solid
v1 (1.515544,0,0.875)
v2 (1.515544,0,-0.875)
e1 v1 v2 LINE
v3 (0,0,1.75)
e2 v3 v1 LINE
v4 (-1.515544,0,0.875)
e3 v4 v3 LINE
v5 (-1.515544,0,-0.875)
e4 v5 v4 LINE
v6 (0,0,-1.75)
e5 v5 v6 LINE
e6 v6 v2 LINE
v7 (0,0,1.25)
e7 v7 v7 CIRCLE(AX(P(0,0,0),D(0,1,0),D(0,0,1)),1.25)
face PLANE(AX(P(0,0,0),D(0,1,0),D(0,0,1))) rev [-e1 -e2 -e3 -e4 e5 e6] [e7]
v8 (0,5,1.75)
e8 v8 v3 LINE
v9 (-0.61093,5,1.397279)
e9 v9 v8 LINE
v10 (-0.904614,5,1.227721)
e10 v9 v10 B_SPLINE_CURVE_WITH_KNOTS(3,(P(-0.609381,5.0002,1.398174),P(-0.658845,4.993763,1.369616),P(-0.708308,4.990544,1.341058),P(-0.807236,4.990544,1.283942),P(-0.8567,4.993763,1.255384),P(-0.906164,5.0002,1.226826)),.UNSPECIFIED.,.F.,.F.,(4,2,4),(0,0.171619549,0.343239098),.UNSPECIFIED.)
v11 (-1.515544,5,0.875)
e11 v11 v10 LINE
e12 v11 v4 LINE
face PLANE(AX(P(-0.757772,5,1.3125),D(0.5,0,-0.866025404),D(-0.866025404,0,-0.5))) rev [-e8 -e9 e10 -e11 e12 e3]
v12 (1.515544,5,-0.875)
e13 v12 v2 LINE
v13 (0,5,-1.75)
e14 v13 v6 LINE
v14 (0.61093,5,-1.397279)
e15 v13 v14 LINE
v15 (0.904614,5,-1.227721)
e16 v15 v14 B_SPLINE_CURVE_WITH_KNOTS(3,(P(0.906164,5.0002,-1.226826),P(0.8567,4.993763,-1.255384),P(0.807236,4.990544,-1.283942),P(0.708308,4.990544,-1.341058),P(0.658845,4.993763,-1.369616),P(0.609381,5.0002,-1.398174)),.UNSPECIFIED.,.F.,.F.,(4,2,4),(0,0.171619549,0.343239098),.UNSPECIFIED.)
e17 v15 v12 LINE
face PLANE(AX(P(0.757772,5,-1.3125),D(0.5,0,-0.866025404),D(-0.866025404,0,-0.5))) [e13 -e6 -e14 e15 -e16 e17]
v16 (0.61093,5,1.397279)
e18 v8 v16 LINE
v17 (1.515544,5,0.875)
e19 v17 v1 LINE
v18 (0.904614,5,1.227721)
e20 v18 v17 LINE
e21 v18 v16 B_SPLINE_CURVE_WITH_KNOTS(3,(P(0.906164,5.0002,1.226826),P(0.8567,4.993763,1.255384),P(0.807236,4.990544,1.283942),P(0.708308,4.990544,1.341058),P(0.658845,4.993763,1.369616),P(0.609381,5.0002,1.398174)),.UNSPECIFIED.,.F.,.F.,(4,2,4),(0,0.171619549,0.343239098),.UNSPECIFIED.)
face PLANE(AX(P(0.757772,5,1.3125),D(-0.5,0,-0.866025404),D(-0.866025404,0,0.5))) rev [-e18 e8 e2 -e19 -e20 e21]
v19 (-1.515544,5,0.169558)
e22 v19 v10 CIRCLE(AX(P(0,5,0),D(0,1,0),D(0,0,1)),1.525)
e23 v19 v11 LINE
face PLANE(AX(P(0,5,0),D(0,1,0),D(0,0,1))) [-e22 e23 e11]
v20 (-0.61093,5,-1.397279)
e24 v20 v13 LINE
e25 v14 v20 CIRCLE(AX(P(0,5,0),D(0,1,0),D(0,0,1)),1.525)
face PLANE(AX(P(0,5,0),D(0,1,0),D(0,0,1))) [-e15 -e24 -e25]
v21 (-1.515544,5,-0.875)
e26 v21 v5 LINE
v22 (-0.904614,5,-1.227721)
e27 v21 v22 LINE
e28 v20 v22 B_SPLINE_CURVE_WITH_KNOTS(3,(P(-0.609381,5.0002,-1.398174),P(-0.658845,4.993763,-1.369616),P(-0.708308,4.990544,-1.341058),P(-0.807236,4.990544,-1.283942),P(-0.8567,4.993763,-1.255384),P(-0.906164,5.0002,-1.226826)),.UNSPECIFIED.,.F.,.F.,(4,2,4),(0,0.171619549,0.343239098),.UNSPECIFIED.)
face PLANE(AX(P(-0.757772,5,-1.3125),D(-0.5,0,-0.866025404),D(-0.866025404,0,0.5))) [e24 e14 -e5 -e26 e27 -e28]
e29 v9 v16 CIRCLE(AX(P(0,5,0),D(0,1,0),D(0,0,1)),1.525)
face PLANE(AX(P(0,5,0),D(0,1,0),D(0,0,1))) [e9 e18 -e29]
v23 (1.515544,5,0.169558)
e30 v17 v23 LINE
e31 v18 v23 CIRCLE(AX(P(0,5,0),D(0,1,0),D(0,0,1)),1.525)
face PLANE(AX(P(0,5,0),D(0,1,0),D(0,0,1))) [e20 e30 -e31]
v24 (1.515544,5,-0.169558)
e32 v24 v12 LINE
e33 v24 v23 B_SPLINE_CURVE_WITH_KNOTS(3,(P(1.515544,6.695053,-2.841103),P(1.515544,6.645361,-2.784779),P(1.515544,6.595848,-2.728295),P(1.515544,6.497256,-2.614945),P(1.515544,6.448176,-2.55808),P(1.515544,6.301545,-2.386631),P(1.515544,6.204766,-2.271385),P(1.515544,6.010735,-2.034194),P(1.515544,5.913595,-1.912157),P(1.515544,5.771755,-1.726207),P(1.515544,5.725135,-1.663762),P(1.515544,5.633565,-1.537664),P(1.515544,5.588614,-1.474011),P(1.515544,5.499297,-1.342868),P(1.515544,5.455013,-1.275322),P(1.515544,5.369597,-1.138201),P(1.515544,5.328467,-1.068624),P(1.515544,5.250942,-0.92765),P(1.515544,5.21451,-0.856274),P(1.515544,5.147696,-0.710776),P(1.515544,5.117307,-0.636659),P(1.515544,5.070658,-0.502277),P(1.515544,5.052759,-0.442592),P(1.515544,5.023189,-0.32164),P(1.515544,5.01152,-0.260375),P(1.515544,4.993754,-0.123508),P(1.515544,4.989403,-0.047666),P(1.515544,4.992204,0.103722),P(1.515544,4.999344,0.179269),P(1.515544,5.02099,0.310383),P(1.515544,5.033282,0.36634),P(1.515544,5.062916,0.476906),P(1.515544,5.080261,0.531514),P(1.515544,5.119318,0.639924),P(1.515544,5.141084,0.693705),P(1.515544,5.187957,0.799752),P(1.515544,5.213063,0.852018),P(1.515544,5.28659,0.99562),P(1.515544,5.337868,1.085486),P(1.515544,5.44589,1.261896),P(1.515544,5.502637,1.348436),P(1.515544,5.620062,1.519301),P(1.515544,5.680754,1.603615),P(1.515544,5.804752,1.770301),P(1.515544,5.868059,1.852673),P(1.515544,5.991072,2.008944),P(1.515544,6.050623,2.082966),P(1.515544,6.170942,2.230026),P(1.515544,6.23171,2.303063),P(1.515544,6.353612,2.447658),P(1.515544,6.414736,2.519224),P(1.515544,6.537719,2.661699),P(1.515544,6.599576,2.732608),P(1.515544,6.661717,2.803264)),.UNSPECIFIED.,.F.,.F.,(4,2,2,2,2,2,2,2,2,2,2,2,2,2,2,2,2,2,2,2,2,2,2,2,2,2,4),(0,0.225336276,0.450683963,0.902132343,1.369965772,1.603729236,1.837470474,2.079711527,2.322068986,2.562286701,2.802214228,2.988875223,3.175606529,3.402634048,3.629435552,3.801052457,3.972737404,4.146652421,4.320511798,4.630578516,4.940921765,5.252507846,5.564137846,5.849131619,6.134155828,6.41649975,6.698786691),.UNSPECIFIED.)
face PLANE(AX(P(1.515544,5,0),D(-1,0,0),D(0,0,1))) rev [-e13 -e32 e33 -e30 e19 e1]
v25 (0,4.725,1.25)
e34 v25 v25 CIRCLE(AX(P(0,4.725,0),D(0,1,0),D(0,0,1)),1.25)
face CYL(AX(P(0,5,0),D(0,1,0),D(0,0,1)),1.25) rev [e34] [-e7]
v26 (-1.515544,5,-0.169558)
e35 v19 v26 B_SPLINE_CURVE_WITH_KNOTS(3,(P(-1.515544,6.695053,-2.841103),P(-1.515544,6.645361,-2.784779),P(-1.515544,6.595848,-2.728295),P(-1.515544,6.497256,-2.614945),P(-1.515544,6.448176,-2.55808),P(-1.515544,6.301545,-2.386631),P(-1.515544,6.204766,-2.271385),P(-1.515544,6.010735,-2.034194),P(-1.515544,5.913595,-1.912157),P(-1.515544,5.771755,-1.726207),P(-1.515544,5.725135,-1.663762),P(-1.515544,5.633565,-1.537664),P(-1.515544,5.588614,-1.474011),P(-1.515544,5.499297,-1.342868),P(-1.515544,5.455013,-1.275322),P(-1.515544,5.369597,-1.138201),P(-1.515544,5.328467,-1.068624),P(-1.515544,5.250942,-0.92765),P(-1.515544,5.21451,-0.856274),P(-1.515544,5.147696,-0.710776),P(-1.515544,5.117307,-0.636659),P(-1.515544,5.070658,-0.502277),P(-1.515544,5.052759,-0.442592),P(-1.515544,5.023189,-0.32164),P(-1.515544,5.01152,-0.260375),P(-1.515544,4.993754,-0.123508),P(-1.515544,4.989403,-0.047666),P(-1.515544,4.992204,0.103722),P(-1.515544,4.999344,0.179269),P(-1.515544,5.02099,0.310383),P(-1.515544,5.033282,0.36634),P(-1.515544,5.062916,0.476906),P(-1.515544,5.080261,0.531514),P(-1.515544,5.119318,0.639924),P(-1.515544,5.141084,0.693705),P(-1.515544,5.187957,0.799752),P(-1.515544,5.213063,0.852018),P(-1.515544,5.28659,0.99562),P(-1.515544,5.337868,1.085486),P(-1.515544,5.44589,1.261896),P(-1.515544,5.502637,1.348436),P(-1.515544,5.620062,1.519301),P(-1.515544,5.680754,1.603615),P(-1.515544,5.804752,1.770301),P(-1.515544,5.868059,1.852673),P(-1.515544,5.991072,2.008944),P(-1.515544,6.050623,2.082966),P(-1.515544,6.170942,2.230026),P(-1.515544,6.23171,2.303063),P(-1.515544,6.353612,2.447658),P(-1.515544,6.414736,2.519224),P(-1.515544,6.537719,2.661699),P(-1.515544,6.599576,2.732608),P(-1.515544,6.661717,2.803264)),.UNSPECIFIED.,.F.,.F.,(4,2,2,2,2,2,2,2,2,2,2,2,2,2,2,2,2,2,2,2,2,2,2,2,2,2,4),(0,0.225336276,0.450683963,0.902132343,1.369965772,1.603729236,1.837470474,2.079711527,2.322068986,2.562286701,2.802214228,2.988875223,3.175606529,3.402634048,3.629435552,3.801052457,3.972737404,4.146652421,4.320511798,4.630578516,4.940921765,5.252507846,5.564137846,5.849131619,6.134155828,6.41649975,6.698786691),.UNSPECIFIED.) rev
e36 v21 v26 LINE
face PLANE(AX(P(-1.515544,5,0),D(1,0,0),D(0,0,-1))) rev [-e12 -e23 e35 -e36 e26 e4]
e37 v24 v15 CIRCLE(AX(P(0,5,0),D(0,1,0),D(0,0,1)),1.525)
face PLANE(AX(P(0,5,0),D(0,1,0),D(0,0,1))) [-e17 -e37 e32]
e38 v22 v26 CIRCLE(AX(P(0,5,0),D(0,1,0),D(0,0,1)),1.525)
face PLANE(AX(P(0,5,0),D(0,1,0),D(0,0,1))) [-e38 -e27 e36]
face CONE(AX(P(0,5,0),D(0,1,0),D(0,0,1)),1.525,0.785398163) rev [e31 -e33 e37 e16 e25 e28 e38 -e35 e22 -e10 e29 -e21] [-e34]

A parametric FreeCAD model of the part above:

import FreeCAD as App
import Part
import Sketcher
from FreeCAD import Vector
Q = App.Units.Quantity


def add_polygon(sketch, points):
    """Adds a closed chain of lines whose ends are joined by coincident constraints."""
    first, n = sketch.GeometryCount, len(points)
    for a, b in zip(points, points[1:] + points[:1]):
        sketch.addGeometry(Part.LineSegment(App.Vector(*a, 0), App.Vector(*b, 0)), False)
    for i in range(n):
        sketch.addConstraint(Sketcher.Constraint("Coincident", first + i, 2, first + (i + 1) % n, 1))

doc = App.newDocument("Part")
params = doc.addObject("Spreadsheet::Sheet", "Params")
for row, (alias, value) in enumerate([
    ("sketch1_height", "1.75 mm"),
    ("pad1_length", "5 mm"),
    ("sketch2_diameter", "2.5 mm"),
    ("hole_diameter", "2.5 mm"),
    ("hole_csink_diameter", "3.05 mm"),
], start=1):
    params.set(f"A{row}", alias)
    params.set(f"B{row}", "=" + value)
    params.setAlias(f"B{row}", alias)

body = doc.addObject("PartDesign::Body", "Body")

# Sketch on XZ plane
sketch1 = body.newObject("Sketcher::SketchObject", "Sketch")
sketch1.AttachmentSupport = (doc.getObject("XZ_Plane"), [""])
sketch1.MapMode = "FlatFace"
add_polygon(sketch1, [(-1.5, -0.9), (-1.5, 0.9), (0, 1.8), (1.5, 0.9), (1.5, -0.9), (0, -1.8)])  # lines 0-5
sketch1.addConstraint(Sketcher.Constraint("Vertical", 0))
sketch1.addConstraint(Sketcher.Constraint("Vertical", 3))
sketch1.addConstraint(Sketcher.Constraint("Symmetric", 0, 2, 3, 2, -1, 1))
sketch1.addConstraint(Sketcher.Constraint("Symmetric", 1, 2, 4, 2, -1, 1))
sketch1.addConstraint(Sketcher.Constraint("PointOnObject", 1, 2, -2))
sketch1.addConstraint(Sketcher.Constraint("Parallel", 2, 5))
sketch1.addConstraint(Sketcher.Constraint("Horizontal", 0, 2, 2, 2))
sketch1.addConstraint(Sketcher.Constraint("Angle", 1, Q("30 deg")))
sketch1.addConstraint(Sketcher.Constraint("DistanceY", 0, 1, 0, 2, 1.75))
sketch1.addConstraint(Sketcher.Constraint("DistanceY", 4, 2, 1, 2, 3.5))
sketch1.setExpression("Constraints[14]", "Params.sketch1_height")
pad1 = body.newObject("PartDesign::Pad", "Pad")
pad1.Profile = sketch1
pad1.setExpression("Length", "Params.pad1_length")
pad1.Reversed = True

# Sketch on XZ plane
sketch2 = body.newObject("Sketcher::SketchObject", "Sketch001")
sketch2.AttachmentSupport = (doc.getObject("XZ_Plane"), [""])
sketch2.MapMode = "FlatFace"
sketch2.AttachmentOffset = App.Placement(Vector(0, 0, -5), App.Rotation())
sketch2.addGeometry(Part.Circle(Vector(0, 0, 0), Vector(0, 0, 1), 1.2), False)
sketch2.addConstraint(Sketcher.Constraint("Coincident", 0, 3, -1, 1))
sketch2.addConstraint(Sketcher.Constraint("Diameter", 0, 2.5))
sketch2.setExpression("Constraints[1]", "Params.sketch2_diameter")
doc.recompute()
hole = body.newObject("PartDesign::Hole", "Hole")
hole.Profile = sketch2
hole.ThreadType = "None"
hole.setExpression("Diameter", "Params.hole_diameter")
hole.DepthType = "ThroughAll"
hole.HoleCutType = "Countersink"
hole.setExpression("HoleCutDiameter", "Params.hole_csink_diameter")
hole.HoleCutCountersinkAngle = 90
hole.Reversed = True

doc.recompute()
